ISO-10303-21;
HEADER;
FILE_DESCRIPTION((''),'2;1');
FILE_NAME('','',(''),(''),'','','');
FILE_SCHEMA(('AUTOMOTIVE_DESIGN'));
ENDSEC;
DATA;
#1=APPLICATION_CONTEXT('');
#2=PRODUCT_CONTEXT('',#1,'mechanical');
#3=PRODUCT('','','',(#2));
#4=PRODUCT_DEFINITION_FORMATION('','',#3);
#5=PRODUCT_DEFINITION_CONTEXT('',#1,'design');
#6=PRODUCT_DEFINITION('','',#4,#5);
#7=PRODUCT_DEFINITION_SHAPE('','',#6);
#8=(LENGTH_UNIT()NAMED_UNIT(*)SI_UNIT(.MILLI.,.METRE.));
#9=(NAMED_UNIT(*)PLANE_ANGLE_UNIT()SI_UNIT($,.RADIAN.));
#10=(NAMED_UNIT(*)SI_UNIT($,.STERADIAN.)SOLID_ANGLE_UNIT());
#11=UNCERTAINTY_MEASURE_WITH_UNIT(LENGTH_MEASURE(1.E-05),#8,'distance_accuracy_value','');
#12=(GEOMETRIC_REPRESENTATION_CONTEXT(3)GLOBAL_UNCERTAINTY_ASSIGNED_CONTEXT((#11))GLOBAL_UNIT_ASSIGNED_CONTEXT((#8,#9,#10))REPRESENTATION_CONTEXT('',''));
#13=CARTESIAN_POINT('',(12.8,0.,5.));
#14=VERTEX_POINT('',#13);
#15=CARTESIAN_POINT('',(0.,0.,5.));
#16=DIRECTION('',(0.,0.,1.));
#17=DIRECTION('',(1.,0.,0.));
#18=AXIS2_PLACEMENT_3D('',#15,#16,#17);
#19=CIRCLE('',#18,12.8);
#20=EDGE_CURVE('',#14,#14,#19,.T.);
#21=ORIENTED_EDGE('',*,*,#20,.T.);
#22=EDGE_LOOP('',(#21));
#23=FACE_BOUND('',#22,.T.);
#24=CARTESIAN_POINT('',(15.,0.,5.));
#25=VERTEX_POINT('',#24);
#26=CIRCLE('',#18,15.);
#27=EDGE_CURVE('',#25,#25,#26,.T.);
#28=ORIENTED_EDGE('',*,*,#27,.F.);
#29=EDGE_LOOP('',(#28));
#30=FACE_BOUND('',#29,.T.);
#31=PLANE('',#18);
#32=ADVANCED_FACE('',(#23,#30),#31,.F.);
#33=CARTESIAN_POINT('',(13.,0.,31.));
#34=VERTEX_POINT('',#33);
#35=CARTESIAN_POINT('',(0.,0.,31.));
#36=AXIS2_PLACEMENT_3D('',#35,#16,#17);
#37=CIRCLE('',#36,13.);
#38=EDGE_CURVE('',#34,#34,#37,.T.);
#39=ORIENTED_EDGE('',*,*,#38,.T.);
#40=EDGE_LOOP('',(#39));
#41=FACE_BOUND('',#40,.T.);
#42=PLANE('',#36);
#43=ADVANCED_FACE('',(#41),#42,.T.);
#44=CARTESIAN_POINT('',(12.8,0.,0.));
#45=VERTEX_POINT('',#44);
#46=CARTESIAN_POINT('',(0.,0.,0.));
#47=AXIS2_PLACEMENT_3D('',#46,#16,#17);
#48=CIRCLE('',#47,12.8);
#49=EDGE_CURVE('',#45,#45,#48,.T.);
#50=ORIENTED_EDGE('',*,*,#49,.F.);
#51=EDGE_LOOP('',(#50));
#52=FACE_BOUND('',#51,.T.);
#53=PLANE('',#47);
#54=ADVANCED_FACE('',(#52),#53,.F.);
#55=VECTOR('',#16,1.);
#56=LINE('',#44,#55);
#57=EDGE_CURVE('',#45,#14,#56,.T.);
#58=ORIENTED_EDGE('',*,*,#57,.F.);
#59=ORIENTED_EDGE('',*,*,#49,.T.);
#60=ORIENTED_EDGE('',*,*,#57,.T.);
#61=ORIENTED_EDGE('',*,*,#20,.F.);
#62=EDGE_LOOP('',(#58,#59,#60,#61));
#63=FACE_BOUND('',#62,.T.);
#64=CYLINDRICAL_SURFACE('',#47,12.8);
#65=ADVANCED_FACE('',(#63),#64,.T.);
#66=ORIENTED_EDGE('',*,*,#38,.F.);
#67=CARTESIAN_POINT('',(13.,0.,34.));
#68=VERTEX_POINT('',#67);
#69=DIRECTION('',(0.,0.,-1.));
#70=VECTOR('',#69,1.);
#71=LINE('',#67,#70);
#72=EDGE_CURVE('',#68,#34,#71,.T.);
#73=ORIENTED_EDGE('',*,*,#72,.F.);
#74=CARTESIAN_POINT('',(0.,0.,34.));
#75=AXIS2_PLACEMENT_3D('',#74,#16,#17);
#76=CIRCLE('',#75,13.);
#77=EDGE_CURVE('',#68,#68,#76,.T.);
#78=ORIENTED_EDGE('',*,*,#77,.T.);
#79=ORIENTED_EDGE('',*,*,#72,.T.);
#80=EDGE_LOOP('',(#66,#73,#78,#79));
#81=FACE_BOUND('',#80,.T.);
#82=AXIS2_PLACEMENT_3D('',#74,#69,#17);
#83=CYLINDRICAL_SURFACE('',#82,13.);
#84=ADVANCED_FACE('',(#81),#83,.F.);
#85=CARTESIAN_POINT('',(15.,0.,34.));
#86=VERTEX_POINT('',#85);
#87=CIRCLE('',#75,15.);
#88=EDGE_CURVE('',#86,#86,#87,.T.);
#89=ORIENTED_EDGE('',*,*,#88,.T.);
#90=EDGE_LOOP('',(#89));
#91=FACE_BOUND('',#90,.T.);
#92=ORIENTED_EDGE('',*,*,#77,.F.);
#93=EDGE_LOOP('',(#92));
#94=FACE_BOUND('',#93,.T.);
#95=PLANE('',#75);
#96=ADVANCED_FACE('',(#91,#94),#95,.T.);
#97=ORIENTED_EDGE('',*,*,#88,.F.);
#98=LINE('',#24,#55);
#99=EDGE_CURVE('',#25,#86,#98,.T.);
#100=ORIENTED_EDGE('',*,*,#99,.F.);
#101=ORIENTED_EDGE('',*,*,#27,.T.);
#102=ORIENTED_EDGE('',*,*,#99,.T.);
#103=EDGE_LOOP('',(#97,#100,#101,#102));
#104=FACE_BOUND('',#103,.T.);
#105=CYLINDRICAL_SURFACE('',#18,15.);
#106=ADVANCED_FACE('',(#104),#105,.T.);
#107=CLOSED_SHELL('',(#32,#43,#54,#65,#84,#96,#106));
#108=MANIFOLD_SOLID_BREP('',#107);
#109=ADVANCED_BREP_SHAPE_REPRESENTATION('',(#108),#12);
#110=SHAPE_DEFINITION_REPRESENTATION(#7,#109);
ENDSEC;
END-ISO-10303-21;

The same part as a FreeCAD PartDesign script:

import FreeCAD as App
import Part
import Sketcher
from FreeCAD import Vector
Q = App.Units.Quantity


def add_polygon(sketch, points):
    """Adds a closed chain of lines whose ends are joined by coincident constraints."""
    first, n = sketch.GeometryCount, len(points)
    for a, b in zip(points, points[1:] + points[:1]):
        sketch.addGeometry(Part.LineSegment(App.Vector(*a, 0), App.Vector(*b, 0)), False)
    for i in range(n):
        sketch.addConstraint(Sketcher.Constraint("Coincident", first + i, 2, first + (i + 1) % n, 1))

doc = App.newDocument("Part")
body = doc.addObject("PartDesign::Body", "Body")

sketch1 = body.newObject("Sketcher::SketchObject", "Sketch")
sketch1.AttachmentSupport = (doc.getObject("XZ_Plane"), [""])
sketch1.MapMode = "FlatFace"
add_polygon(sketch1, [(0, 0), (12.8, 0), (12.8, 5), (15, 5), (15, 34), (13, 34), (13, 31), (0, 31)])
sketch1.addConstraint([
    Sketcher.Constraint("Horizontal", 0),
    Sketcher.Constraint("Vertical", 1),
    Sketcher.Constraint("Horizontal", 2),
    Sketcher.Constraint("Vertical", 3),
    Sketcher.Constraint("Horizontal", 4),
    Sketcher.Constraint("Vertical", 5),
    Sketcher.Constraint("Horizontal", 6),
    Sketcher.Constraint("Vertical", 7),
    Sketcher.Constraint("Coincident", 7, 2, -1, 1),
    Sketcher.Constraint("DistanceX", 4, 2, 4, 1, Q("2 mm")),
    Sketcher.Constraint("DistanceX", 6, 2, 6, 1, Q("13 mm")),
    Sketcher.Constraint("DistanceY", 1, 1, 1, 2, Q("5 mm")),
    Sketcher.Constraint("DistanceY", 3, 1, 3, 2, Q("29 mm")),
    Sketcher.Constraint("DistanceY", 5, 2, 5, 1, Q("3 mm")),
    Sketcher.Constraint("DistanceX", 0, 1, 0, 2, Q("12.8 mm")),
])
revolution = body.newObject("PartDesign::Revolution", "Revolution")
revolution.Profile = sketch1
revolution.ReferenceAxis = (sketch1, ["V_Axis"])
revolution.Angle = 360

doc.recompute()
